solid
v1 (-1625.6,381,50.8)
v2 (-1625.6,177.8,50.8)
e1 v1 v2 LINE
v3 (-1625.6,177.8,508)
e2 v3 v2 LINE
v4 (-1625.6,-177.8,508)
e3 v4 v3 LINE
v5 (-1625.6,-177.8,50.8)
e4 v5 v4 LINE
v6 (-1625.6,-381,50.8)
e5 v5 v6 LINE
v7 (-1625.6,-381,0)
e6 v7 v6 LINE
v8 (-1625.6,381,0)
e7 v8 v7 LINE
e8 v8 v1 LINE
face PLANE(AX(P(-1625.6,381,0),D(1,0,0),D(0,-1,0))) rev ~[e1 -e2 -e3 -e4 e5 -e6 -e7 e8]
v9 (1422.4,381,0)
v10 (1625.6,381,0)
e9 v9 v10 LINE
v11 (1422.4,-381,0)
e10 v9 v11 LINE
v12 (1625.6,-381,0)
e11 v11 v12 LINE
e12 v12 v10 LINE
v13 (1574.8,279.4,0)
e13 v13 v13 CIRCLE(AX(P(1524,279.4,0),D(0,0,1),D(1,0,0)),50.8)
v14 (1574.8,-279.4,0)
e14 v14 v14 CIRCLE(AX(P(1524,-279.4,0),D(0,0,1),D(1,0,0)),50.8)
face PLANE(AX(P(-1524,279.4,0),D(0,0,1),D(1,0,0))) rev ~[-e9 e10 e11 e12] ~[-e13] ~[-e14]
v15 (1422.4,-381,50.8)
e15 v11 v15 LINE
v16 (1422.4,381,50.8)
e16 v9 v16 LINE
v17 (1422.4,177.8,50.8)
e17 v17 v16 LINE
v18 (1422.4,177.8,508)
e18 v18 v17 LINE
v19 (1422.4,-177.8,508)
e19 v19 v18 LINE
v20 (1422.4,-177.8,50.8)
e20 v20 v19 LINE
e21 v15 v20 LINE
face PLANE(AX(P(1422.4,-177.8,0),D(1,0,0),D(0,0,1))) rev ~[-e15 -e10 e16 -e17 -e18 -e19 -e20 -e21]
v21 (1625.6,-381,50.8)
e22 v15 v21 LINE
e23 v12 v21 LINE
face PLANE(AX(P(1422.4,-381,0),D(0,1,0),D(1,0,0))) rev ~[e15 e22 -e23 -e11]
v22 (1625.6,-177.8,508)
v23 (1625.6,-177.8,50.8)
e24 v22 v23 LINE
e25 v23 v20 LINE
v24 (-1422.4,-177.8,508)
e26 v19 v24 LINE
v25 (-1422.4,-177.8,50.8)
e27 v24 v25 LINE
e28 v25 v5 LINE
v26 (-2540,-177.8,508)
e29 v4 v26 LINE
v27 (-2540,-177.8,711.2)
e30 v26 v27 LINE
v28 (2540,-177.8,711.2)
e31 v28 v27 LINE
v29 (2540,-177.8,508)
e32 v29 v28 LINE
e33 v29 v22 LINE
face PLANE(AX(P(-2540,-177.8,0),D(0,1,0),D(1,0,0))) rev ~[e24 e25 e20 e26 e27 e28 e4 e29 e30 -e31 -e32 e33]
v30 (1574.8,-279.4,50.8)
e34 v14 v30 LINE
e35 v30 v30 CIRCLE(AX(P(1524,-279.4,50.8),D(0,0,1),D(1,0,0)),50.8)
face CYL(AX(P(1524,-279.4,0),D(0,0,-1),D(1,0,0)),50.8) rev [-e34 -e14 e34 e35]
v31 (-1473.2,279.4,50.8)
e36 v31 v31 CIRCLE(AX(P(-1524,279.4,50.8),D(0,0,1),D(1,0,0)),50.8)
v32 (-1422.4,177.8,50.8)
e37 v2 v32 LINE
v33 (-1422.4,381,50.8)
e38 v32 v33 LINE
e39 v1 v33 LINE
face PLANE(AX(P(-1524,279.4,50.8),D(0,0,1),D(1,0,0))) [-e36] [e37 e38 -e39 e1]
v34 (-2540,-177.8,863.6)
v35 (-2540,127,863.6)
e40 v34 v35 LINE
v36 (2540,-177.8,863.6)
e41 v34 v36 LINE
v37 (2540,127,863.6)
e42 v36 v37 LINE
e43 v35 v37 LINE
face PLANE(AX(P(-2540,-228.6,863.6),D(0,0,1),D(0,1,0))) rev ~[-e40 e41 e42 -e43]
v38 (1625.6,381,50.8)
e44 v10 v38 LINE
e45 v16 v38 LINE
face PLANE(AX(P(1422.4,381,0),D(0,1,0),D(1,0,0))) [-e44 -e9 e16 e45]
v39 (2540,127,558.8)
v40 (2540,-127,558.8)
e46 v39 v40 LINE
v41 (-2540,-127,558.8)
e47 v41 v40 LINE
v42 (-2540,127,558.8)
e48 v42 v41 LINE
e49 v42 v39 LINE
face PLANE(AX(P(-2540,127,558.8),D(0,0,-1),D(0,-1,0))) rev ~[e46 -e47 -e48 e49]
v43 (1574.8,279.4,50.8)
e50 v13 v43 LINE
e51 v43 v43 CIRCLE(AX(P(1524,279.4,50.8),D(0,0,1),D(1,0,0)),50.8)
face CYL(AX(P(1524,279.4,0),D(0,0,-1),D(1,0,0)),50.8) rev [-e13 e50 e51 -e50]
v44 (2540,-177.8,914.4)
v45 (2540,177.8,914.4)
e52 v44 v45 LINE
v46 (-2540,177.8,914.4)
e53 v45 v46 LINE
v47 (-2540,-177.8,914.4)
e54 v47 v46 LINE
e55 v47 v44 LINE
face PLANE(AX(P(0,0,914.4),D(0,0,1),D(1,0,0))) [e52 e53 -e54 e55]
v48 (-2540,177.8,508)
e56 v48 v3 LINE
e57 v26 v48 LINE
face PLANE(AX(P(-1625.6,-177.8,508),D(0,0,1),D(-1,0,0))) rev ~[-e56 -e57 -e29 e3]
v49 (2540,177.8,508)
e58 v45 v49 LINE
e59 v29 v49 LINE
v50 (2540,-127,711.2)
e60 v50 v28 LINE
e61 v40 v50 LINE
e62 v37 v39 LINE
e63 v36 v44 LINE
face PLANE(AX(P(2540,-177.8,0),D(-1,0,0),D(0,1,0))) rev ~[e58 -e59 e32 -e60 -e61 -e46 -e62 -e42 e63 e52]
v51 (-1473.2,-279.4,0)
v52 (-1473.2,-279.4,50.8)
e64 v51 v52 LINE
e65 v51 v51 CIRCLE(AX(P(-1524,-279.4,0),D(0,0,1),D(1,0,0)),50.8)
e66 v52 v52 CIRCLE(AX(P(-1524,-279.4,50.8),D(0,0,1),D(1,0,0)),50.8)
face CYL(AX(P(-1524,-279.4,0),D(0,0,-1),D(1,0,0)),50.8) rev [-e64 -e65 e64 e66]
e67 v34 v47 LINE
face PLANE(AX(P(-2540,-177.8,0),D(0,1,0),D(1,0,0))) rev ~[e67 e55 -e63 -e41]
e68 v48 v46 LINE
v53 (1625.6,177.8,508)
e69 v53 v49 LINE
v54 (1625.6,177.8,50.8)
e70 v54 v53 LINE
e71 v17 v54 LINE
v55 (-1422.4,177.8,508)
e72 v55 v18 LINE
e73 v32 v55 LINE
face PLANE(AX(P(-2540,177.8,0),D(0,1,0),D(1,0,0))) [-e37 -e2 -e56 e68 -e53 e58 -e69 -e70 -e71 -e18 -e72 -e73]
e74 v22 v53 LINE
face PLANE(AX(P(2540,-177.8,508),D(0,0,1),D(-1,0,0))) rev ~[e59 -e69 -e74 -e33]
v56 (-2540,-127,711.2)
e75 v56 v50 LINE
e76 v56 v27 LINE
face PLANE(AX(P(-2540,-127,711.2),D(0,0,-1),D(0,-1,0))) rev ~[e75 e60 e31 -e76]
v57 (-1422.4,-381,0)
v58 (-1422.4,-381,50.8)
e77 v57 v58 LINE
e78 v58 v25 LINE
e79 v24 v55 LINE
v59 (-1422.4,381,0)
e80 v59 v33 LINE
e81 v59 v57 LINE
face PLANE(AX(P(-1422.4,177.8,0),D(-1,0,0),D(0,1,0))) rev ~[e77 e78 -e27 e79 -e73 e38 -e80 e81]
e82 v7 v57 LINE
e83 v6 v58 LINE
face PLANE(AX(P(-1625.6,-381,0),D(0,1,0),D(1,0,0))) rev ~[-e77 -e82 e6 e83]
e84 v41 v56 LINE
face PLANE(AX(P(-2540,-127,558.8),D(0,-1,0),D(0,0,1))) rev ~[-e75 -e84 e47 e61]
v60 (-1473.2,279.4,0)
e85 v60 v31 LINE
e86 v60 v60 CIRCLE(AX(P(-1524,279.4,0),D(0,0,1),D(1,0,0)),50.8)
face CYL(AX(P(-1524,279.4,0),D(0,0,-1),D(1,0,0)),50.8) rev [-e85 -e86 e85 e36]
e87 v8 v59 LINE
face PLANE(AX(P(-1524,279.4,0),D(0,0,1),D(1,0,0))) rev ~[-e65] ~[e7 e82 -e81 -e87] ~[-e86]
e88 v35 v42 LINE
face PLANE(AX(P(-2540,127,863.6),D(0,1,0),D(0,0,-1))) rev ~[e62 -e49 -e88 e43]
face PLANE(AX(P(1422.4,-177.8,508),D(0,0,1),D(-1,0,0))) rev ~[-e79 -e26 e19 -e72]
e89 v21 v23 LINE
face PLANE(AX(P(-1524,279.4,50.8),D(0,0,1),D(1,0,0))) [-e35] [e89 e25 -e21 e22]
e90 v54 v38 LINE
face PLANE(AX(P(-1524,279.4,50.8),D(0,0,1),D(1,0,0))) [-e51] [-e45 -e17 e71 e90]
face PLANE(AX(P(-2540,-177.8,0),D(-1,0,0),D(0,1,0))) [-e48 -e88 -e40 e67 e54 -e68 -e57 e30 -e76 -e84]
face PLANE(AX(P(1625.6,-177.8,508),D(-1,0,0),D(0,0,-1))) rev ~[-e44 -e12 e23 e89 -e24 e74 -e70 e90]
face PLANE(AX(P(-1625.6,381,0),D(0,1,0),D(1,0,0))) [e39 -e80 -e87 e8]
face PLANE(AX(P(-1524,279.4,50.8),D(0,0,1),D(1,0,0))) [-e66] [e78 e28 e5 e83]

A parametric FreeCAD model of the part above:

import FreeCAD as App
import Part
import Sketcher

V = App.Vector
Q = App.Units.Quantity

doc = App.newDocument("Part")
body = doc.addObject("PartDesign::Body", "Body")

sketch1 = doc.addObject("Sketcher::SketchObject", "Sketch")
body.addObject(sketch1)
sketch1.AttachmentSupport = (doc.XY_Plane, [""])
sketch1.MapMode = "FlatFace"
sketch1.addGeometry([
    Part.LineSegment(V(-1626, 381, 0), V(-1626, 178, 0)),
    Part.LineSegment(V(-1626, 178, 0), V(-2540, 178, 0)),
    Part.LineSegment(V(-2540, 178, 0), V(-2540, -178, 0)),
    Part.LineSegment(V(-2540, -178, 0), V(-1626, -178, 0)),
    Part.LineSegment(V(-1626, -178, 0), V(-1626, -381, 0)),
    Part.LineSegment(V(-1626, -381, 0), V(-1422, -381, 0)),
    Part.LineSegment(V(-1422, -381, 0), V(-1422, -178, 0)),
    Part.LineSegment(V(-1422, -178, 0), V(1422, -178, 0)),
    Part.LineSegment(V(1422, -178, 0), V(1422, -381, 0)),
    Part.LineSegment(V(1422, -381, 0), V(1626, -381, 0)),
    Part.LineSegment(V(1626, -381, 0), V(1626, -178, 0)),
    Part.LineSegment(V(1626, -178, 0), V(2540, -178, 0)),
    Part.LineSegment(V(2540, -178, 0), V(2540, 178, 0)),
    Part.LineSegment(V(2540, 178, 0), V(1626, 178, 0)),
    Part.LineSegment(V(1626, 178, 0), V(1626, 381, 0)),
    Part.LineSegment(V(1626, 381, 0), V(1422, 381, 0)),
    Part.LineSegment(V(1422, 381, 0), V(1422, 178, 0)),
    Part.LineSegment(V(1422, 178, 0), V(-1422, 178, 0)),
    Part.LineSegment(V(-1422, 178, 0), V(-1422, 381, 0)),
    Part.LineSegment(V(-1422, 381, 0), V(-1626, 381, 0)),
    Part.Circle(V(-1524, -279, 0), V(0, 0, 1), 51),
    Part.Circle(V(1524, -279, 0), V(0, 0, 1), 51),
    Part.Circle(V(-1524, 279, 0), V(0, 0, 1), 51),
    Part.Circle(V(1524, 279, 0), V(0, 0, 1), 51),
], False)
sketch1.addConstraint([
    Sketcher.Constraint("Coincident", 0, 2, 1, 1),
    Sketcher.Constraint("Coincident", 1, 2, 2, 1),
    Sketcher.Constraint("Coincident", 2, 2, 3, 1),
    Sketcher.Constraint("Coincident", 3, 2, 4, 1),
    Sketcher.Constraint("Coincident", 4, 2, 5, 1),
    Sketcher.Constraint("Coincident", 5, 2, 6, 1),
    Sketcher.Constraint("Coincident", 6, 2, 7, 1),
    Sketcher.Constraint("Coincident", 7, 2, 8, 1),
    Sketcher.Constraint("Coincident", 8, 2, 9, 1),
    Sketcher.Constraint("Coincident", 9, 2, 10, 1),
    Sketcher.Constraint("Coincident", 10, 2, 11, 1),
    Sketcher.Constraint("Coincident", 11, 2, 12, 1),
    Sketcher.Constraint("Coincident", 12, 2, 13, 1),
    Sketcher.Constraint("Coincident", 13, 2, 14, 1),
    Sketcher.Constraint("Coincident", 14, 2, 15, 1),
    Sketcher.Constraint("Coincident", 15, 2, 16, 1),
    Sketcher.Constraint("Coincident", 16, 2, 17, 1),
    Sketcher.Constraint("Coincident", 17, 2, 18, 1),
    Sketcher.Constraint("Coincident", 18, 2, 19, 1),
    Sketcher.Constraint("Coincident", 19, 2, 0, 1),
    Sketcher.Constraint("Vertical", 0),
    Sketcher.Constraint("Horizontal", 1),
    Sketcher.Constraint("Vertical", 2),
    Sketcher.Constraint("Horizontal", 3),
    Sketcher.Constraint("Vertical", 4),
    Sketcher.Constraint("Horizontal", 5),
    Sketcher.Constraint("Vertical", 6),
    Sketcher.Constraint("Horizontal", 7),
    Sketcher.Constraint("Vertical", 8),
    Sketcher.Constraint("Horizontal", 9),
    Sketcher.Constraint("Vertical", 10),
    Sketcher.Constraint("Horizontal", 11),
    Sketcher.Constraint("Vertical", 12),
    Sketcher.Constraint("Horizontal", 13),
    Sketcher.Constraint("Vertical", 14),
    Sketcher.Constraint("Horizontal", 15),
    Sketcher.Constraint("Vertical", 16),
    Sketcher.Constraint("Horizontal", 17),
    Sketcher.Constraint("Vertical", 18),
    Sketcher.Constraint("Horizontal", 19),
    Sketcher.Constraint("Equal", 20, 21),
    Sketcher.Constraint("Equal", 21, 22),
    Sketcher.Constraint("Equal", 22, 23),
    Sketcher.Constraint("Symmetric", 21, 3, 22, 3, -1, 1),
    Sketcher.Constraint("Symmetric", 20, 3, 23, 3, -1, 1),
    Sketcher.Constraint("Symmetric", 0, 2, 10, 2, -1, 1),
    Sketcher.Constraint("Symmetric", 2, 2, 12, 2, -1, 1),
    Sketcher.Constraint("Symmetric", 4, 2, 14, 2, -1, 1),
    Sketcher.Constraint("Symmetric", 6, 2, 16, 2, -1, 1),
    Sketcher.Constraint("Symmetric", 8, 2, 18, 2, -1, 1),
    Sketcher.Constraint("Symmetric", 20, 3, 21, 3, -2),
    Sketcher.Constraint("Symmetric", 5, 2, 8, 2, -2),
    Sketcher.Constraint("Symmetric", 3, 2, 10, 2, -2),
    Sketcher.Constraint("Horizontal", 3, 2, 6, 2),
    Sketcher.Constraint("Equal", 19, 0),
    Sketcher.Constraint("Diameter", 20, Q("4 in")),
    Sketcher.Constraint("DistanceX", 1, 2, 1, 1, Q("36 in")),
    Sketcher.Constraint("DistanceX", 5, 1, 5, 2, Q("8 in")),
    Sketcher.Constraint("DistanceX", 7, 1, 7, 2, Q("112 in")),
    Sketcher.Constraint("DistanceY", 2, 2, 2, 1, Q("14 in")),
    Sketcher.Constraint("DistanceX", 20, 3, -1, 1, Q("60 in")),
    Sketcher.Constraint("DistanceY", 20, 3, -1, 1, Q("11 in")),
])
pad1 = doc.addObject("PartDesign::Pad", "Pad")
body.addObject(pad1)
pad1.Profile = sketch1
pad1.Length = Q("2 in")

sketch2 = doc.addObject("Sketcher::SketchObject", "Sketch001")
body.addObject(sketch2)
sketch2.AttachmentSupport = (doc.XY_Plane, [""])
sketch2.MapMode = "FlatFace"
sketch2.addGeometry([
    Part.LineSegment(V(-2540, 178, 0), V(-2540, -178, 0)),
    Part.LineSegment(V(-2540, -178, 0), V(2540, -178, 0)),
    Part.LineSegment(V(2540, -178, 0), V(2540, 178, 0)),
    Part.LineSegment(V(2540, 178, 0), V(-2540, 178, 0)),
], False)
sketch2.addConstraint([
    Sketcher.Constraint("Coincident", 0, 2, 1, 1),
    Sketcher.Constraint("Coincident", 1, 2, 2, 1),
    Sketcher.Constraint("Coincident", 2, 2, 3, 1),
    Sketcher.Constraint("Coincident", 3, 2, 0, 1),
    Sketcher.Constraint("Vertical", 0),
    Sketcher.Constraint("Horizontal", 1),
    Sketcher.Constraint("Vertical", 2),
    Sketcher.Constraint("Horizontal", 3),
    Sketcher.Constraint("Symmetric", 0, 2, 2, 2, -1, 1),
    Sketcher.Constraint("DistanceX", 1, 1, 1, 2, Q("200 in")),
    Sketcher.Constraint("DistanceY", 0, 2, 0, 1, Q("14 in")),
])
pad2 = doc.addObject("PartDesign::Pad", "Pad001")
body.addObject(pad2)
pad2.Profile = sketch2
pad2.Length = Q("36 in")

sketch3 = doc.addObject("Sketcher::SketchObject", "Sketch002")
body.addObject(sketch3)
sketch3.AttachmentSupport = (doc.YZ_Plane, [""])
sketch3.MapMode = "FlatFace"
sketch3.AttachmentOffset = App.Placement(V(0, 0, -100 * 25.4), App.Rotation())
sketch3.addGeometry([
    Part.LineSegment(V(127, 864, 0), V(127, 559, 0)),
    Part.LineSegment(V(127, 559, 0), V(-127, 559, 0)),
    Part.LineSegment(V(-127, 559, 0), V(-127, 711, 0)),
    Part.LineSegment(V(-127, 711, 0), V(-229, 711, 0)),
    Part.LineSegment(V(-229, 711, 0), V(-229, 864, 0)),
    Part.LineSegment(V(-229, 864, 0), V(127, 864, 0)),
], False)
sketch3.addConstraint([
    Sketcher.Constraint("Coincident", 0, 2, 1, 1),
    Sketcher.Constraint("Coincident", 1, 2, 2, 1),
    Sketcher.Constraint("Coincident", 2, 2, 3, 1),
    Sketcher.Constraint("Coincident", 3, 2, 4, 1),
    Sketcher.Constraint("Coincident", 4, 2, 5, 1),
    Sketcher.Constraint("Coincident", 5, 2, 0, 1),
    Sketcher.Constraint("Vertical", 0),
    Sketcher.Constraint("Horizontal", 1),
    Sketcher.Constraint("Vertical", 2),
    Sketcher.Constraint("Horizontal", 3),
    Sketcher.Constraint("Vertical", 4),
    Sketcher.Constraint("Horizontal", 5),
    Sketcher.Constraint("Equal", 2, 4),
    Sketcher.Constraint("DistanceX", 1, 2, 1, 1, Q("10 in")),
    Sketcher.Constraint("DistanceX", 3, 2, 3, 1, Q("4 in")),
    Sketcher.Constraint("DistanceY", 0, 2, 0, 1, Q("12 in")),
    Sketcher.Constraint("DistanceX", -1, 1, 0, 2, Q("5 in")),
    Sketcher.Constraint("DistanceY", -1, 1, 0, 2, Q("22 in")),
])
pocket1 = doc.addObject("PartDesign::Pocket", "Pocket")
body.addObject(pocket1)
pocket1.Profile = sketch3
pocket1.Length = Q("234.8 in")
pocket1.Reversed = True

sketch4 = doc.addObject("Sketcher::SketchObject", "Sketch003")
body.addObject(sketch4)
sketch4.AttachmentSupport = (doc.XZ_Plane, [""])
sketch4.MapMode = "FlatFace"
sketch4.AttachmentOffset = App.Placement(V(0, 0, 7 * 25.4), App.Rotation())
sketch4.addGeometry([
    Part.LineSegment(V(-1422, 508, 0), V(-1422, 0, 0)),
    Part.LineSegment(V(-1422, 0, 0), V(1422, 0, 0)),
    Part.LineSegment(V(1422, 0, 0), V(1422, 508, 0)),
    Part.LineSegment(V(1422, 508, 0), V(-1422, 508, 0)),
    Part.LineSegment(V(2540, 0, 0), V(2540, 508, 0)),
    Part.LineSegment(V(2540, 508, 0), V(1626, 508, 0)),
    Part.LineSegment(V(1626, 508, 0), V(1626, 0, 0)),
    Part.LineSegment(V(1626, 0, 0), V(2540, 0, 0)),
    Part.LineSegment(V(-2540, 0, 0), V(-1626, 0, 0)),
    Part.LineSegment(V(-1626, 0, 0), V(-1626, 508, 0)),
    Part.LineSegment(V(-1626, 508, 0), V(-2540, 508, 0)),
    Part.LineSegment(V(-2540, 508, 0), V(-2540, 0, 0)),
], False)
sketch4.addConstraint([
    Sketcher.Constraint("Coincident", 0, 2, 1, 1),
    Sketcher.Constraint("Coincident", 1, 2, 2, 1),
    Sketcher.Constraint("Coincident", 2, 2, 3, 1),
    Sketcher.Constraint("Coincident", 3, 2, 0, 1),
    Sketcher.Constraint("Coincident", 4, 2, 5, 1),
    Sketcher.Constraint("Coincident", 5, 2, 6, 1),
    Sketcher.Constraint("Coincident", 6, 2, 7, 1),
    Sketcher.Constraint("Coincident", 7, 2, 4, 1),
    Sketcher.Constraint("Coincident", 8, 2, 9, 1),
    Sketcher.Constraint("Coincident", 9, 2, 10, 1),
    Sketcher.Constraint("Coincident", 10, 2, 11, 1),
    Sketcher.Constraint("Coincident", 11, 2, 8, 1),
    Sketcher.Constraint("Vertical", 0),
    Sketcher.Constraint("Horizontal", 1),
    Sketcher.Constraint("Vertical", 2),
    Sketcher.Constraint("Horizontal", 3),
    Sketcher.Constraint("Vertical", 4),
    Sketcher.Constraint("Horizontal", 5),
    Sketcher.Constraint("Vertical", 6),
    Sketcher.Constraint("Horizontal", 7),
    Sketcher.Constraint("Horizontal", 8),
    Sketcher.Constraint("Vertical", 9),
    Sketcher.Constraint("Horizontal", 10),
    Sketcher.Constraint("Vertical", 11),
    Sketcher.Constraint("Symmetric", 0, 2, 1, 2, -1, 1),
    Sketcher.Constraint("Symmetric", 6, 2, 8, 2, -1, 1),
    Sketcher.Constraint("Symmetric", 4, 2, 10, 2, -2),
    Sketcher.Constraint("PointOnObject", 6, 2, -1),
    Sketcher.Constraint("Horizontal", 3, 2, 4, 2),
    Sketcher.Constraint("DistanceX", 1, 1, 1, 2, Q("112 in")),
    Sketcher.Constraint("DistanceX", 5, 2, 5, 1, Q("36 in")),
    Sketcher.Constraint("DistanceY", 0, 2, 0, 1, Q("20 in")),
    Sketcher.Constraint("DistanceX", -1, 1, 4, 2, Q("100 in")),
])
pocket2 = doc.addObject("PartDesign::Pocket", "Pocket001")
body.addObject(pocket2)
pocket2.Profile = sketch4
pocket2.Length = Q("45 in")

doc.recompute()
